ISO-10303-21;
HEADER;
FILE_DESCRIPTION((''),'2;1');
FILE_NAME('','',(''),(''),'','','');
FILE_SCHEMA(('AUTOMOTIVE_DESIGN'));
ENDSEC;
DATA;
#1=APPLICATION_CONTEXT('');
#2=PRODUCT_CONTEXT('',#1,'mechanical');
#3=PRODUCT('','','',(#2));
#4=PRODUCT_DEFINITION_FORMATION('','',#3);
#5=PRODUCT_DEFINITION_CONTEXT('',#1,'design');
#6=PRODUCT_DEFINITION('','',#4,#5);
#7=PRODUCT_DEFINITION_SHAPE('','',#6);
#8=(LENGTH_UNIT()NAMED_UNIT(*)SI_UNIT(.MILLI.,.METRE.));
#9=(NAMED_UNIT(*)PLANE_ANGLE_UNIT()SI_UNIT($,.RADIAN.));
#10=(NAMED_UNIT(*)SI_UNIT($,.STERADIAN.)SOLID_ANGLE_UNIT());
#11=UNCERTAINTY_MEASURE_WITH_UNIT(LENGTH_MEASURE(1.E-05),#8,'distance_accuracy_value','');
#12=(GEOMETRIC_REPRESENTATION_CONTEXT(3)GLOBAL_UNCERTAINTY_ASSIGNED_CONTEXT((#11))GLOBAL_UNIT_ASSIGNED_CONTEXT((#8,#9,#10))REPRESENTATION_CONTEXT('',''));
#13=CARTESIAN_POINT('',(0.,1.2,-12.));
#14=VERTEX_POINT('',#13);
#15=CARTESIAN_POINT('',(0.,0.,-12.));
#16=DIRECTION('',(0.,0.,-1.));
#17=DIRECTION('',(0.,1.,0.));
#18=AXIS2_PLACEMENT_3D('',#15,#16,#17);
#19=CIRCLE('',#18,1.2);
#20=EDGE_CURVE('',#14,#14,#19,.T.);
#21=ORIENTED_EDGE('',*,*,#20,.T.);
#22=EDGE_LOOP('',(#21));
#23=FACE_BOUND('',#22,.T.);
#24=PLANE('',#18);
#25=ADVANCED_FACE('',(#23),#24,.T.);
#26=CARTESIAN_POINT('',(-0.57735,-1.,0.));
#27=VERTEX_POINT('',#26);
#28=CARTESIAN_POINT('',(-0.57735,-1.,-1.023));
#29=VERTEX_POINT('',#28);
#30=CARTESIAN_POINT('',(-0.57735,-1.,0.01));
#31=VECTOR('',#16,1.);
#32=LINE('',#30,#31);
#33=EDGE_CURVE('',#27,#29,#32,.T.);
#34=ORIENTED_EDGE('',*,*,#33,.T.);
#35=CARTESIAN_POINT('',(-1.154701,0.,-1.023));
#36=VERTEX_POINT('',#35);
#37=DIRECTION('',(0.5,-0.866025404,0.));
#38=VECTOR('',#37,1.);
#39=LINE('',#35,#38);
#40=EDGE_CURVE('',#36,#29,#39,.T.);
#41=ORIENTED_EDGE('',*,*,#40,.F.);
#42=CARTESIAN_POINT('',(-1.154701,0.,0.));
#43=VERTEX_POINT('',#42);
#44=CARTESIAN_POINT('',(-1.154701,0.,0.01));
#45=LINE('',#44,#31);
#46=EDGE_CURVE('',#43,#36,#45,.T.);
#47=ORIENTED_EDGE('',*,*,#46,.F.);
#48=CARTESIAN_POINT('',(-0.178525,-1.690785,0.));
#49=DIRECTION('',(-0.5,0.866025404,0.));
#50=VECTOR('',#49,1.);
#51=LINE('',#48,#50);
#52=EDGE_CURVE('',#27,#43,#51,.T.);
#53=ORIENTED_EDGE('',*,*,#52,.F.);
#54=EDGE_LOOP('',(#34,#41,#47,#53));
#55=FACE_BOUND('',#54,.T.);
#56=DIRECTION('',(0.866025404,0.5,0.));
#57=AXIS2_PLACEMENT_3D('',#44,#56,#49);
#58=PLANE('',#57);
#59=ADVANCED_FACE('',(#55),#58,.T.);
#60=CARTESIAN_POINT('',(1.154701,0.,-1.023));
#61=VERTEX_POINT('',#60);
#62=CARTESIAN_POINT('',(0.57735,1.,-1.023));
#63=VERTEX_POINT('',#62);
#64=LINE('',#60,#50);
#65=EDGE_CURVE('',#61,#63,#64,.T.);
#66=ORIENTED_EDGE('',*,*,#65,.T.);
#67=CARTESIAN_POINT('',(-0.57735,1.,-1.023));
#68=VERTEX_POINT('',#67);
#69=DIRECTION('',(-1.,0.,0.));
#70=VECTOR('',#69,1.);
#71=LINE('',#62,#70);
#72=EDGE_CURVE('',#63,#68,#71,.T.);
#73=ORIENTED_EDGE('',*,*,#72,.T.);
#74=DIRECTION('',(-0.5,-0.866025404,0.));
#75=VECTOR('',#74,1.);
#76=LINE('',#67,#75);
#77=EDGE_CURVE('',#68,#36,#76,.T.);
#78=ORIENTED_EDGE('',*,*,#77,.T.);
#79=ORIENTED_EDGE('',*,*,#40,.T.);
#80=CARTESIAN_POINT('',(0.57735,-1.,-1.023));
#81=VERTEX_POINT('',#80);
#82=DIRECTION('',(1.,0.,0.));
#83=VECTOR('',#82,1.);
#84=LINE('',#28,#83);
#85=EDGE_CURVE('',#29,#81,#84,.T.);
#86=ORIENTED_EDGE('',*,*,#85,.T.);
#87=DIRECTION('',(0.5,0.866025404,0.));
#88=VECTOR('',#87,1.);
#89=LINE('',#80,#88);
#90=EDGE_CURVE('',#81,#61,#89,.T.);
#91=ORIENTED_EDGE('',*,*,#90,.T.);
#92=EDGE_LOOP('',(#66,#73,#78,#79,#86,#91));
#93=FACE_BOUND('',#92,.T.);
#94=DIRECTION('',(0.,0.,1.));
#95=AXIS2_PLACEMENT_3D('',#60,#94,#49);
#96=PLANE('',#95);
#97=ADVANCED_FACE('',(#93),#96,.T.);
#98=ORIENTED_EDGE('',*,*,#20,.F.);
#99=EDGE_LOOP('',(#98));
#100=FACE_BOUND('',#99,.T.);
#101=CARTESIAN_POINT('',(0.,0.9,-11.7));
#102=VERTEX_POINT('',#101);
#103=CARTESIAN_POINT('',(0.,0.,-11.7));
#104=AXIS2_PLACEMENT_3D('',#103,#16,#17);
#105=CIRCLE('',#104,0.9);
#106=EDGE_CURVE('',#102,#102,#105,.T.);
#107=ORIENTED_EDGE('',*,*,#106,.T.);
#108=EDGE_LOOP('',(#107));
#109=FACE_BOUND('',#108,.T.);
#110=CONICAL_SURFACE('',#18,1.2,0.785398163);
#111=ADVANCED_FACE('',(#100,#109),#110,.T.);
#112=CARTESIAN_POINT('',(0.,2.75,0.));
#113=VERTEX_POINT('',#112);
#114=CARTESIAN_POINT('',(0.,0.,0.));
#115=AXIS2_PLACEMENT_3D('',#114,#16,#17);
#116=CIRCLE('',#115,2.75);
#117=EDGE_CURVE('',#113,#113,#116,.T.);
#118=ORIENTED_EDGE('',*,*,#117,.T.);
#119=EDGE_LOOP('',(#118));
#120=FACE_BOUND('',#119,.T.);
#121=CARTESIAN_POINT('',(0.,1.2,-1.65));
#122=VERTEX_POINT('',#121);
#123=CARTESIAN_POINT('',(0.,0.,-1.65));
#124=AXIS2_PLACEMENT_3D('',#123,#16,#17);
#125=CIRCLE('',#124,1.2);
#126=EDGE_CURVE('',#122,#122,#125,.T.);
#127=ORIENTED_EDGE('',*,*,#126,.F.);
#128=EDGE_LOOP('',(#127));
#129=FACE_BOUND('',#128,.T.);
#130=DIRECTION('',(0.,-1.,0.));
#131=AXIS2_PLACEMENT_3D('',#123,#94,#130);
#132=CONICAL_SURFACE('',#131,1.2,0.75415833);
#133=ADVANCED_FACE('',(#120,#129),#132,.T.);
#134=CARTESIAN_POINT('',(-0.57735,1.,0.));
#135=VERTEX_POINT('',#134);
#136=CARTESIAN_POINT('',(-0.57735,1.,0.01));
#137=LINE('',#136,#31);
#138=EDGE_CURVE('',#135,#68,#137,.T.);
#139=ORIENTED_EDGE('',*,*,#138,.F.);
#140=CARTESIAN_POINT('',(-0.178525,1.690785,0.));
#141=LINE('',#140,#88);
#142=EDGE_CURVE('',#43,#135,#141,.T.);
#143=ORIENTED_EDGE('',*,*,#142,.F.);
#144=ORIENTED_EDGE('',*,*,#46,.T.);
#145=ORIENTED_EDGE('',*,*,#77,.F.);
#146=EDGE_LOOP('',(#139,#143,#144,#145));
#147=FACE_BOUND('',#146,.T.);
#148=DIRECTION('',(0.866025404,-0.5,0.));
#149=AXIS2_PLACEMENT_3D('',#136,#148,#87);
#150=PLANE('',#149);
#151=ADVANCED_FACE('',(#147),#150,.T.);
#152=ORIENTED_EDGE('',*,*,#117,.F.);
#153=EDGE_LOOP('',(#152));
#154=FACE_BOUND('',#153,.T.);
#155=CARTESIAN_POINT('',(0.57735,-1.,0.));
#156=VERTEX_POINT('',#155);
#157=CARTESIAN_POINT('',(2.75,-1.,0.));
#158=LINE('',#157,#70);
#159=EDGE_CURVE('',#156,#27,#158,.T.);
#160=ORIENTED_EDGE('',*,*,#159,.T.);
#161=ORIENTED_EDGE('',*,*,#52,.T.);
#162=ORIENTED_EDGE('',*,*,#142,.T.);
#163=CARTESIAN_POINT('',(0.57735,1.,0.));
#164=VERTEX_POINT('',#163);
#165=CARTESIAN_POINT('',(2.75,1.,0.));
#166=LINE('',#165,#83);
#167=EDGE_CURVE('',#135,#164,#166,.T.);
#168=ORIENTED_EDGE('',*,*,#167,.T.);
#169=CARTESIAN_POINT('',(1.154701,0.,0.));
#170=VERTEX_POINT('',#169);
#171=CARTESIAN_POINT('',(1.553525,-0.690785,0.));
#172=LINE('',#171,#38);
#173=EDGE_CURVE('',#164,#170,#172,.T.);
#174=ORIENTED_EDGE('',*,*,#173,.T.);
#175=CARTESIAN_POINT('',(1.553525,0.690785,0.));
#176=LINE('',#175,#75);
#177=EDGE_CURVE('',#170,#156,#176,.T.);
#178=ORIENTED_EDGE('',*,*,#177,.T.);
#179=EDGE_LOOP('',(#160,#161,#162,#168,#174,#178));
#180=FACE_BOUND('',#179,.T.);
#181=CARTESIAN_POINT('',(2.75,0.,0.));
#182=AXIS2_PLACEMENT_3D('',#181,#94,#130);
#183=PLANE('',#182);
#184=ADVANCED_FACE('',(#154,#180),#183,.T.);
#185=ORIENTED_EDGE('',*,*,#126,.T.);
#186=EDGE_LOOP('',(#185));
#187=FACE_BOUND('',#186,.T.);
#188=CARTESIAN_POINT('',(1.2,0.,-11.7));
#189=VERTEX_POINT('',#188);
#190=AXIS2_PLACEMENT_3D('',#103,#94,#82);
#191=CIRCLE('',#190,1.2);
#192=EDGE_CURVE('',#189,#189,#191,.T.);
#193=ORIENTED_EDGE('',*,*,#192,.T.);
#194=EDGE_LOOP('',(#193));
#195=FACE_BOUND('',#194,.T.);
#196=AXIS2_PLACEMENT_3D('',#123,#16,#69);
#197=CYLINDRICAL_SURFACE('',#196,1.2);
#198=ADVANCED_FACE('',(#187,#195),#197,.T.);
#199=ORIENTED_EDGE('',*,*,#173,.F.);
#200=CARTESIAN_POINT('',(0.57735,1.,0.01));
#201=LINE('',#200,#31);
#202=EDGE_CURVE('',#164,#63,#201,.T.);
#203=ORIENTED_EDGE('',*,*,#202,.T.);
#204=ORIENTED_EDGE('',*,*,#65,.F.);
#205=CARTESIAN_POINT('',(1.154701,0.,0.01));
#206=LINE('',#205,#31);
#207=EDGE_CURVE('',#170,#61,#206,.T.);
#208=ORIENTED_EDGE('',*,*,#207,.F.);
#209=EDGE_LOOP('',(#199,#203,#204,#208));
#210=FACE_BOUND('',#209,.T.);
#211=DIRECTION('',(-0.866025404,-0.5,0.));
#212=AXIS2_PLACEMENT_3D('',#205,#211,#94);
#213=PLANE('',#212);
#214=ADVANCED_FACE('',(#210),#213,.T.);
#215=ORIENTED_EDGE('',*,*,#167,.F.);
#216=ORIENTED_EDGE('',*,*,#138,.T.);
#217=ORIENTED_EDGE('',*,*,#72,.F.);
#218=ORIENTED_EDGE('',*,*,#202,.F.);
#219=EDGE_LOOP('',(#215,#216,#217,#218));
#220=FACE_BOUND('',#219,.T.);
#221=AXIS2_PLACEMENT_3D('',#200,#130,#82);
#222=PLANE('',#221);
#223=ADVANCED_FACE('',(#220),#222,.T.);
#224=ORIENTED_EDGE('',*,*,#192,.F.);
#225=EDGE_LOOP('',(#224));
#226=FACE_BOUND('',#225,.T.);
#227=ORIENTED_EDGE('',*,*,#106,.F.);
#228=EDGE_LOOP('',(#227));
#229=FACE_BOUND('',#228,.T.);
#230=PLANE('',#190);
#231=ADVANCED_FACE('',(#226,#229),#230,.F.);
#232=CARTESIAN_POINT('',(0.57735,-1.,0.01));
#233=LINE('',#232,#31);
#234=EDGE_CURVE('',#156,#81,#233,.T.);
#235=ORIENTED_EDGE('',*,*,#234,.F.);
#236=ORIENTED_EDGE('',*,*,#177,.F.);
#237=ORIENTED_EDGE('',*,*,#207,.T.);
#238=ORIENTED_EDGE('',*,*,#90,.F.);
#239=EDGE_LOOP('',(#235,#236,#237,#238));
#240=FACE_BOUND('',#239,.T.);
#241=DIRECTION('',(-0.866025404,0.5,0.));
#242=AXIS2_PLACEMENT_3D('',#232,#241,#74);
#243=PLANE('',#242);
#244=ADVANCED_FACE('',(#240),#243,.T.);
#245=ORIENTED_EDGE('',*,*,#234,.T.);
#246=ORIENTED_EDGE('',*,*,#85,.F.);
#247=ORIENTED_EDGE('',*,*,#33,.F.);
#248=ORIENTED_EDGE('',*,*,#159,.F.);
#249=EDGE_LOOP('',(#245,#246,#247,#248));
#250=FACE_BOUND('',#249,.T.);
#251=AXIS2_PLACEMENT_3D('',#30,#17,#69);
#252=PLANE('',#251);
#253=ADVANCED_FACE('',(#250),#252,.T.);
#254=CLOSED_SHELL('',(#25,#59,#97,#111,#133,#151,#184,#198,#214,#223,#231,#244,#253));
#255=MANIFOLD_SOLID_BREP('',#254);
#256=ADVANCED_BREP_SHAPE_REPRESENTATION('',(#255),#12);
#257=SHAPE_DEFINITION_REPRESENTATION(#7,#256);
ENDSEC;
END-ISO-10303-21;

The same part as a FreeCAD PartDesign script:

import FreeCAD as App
import Part
import Sketcher
from FreeCAD import Vector
Q = App.Units.Quantity


def add_polygon(sketch, points):
    """Adds a closed chain of lines whose ends are joined by coincident constraints."""
    first, n = sketch.GeometryCount, len(points)
    for a, b in zip(points, points[1:] + points[:1]):
        sketch.addGeometry(Part.LineSegment(App.Vector(*a, 0), App.Vector(*b, 0)), False)
    for i in range(n):
        sketch.addConstraint(Sketcher.Constraint("Coincident", first + i, 2, first + (i + 1) % n, 1))

doc = App.newDocument("Part")
body = doc.addObject("PartDesign::Body", "Body")

sketch1 = body.newObject("Sketcher::SketchObject", "Sketch")
sketch1.AttachmentSupport = (doc.getObject("XY_Plane"), [""])
sketch1.MapMode = "FlatFace"
add_polygon(sketch1, [(0, 0), (1.2, 0), (2.8, 1.6), (0, 1.6)])
sketch1.addConstraint(Sketcher.Constraint("Horizontal", 0))
sketch1.addConstraint(Sketcher.Constraint("Horizontal", 2))
sketch1.addConstraint(Sketcher.Constraint("Vertical", 3))
sketch1.addConstraint(Sketcher.Constraint("Coincident", 3, 2, -1, 1))
sketch1.addConstraint(Sketcher.Constraint("DistanceX", 0, 1, 0, 2, 1.2))
sketch1.addConstraint(Sketcher.Constraint("DistanceX", 2, 2, 2, 1, 2.75))
sketch1.addConstraint(Sketcher.Constraint("DistanceY", 3, 2, 3, 1, 1.65))
revolution = body.newObject("PartDesign::Revolution", "Revolution")
revolution.Profile = sketch1
revolution.ReferenceAxis = (sketch1, ["V_Axis"])
revolution.Angle = 360
body2 = doc.addObject("PartDesign::Body", "Body001")
doc.recompute()

body.Placement = App.Placement(Vector(0, 0, 0), App.Rotation(Vector(1, 0, 0), 90))
boolean = body2.newObject("PartDesign::Boolean", "Boolean")
boolean.Type = "Fuse"
boolean.addObjects([body])
body3 = doc.addObject("PartDesign::Body", "Body002")
doc.recompute()

body2.Placement = App.Placement(Vector(0, 0, -1.65), App.Rotation(Vector(0, 0, 1), 0))
boolean2 = body3.newObject("PartDesign::Boolean", "Boolean001")
boolean2.Type = "Fuse"
boolean2.addObjects([body2])
body4 = doc.addObject("PartDesign::Body", "Body003")

sketch2 = body4.newObject("Sketcher::SketchObject", "Sketch001")
sketch2.AttachmentSupport = (doc.getObject("XY_Plane003"), [""])
sketch2.MapMode = "FlatFace"
sketch2.addGeometry(Part.Circle(Vector(0, 0, 0), Vector(0, 0, 1), 1.2), False)
sketch2.addConstraint(Sketcher.Constraint("Coincident", 0, 3, -1, 1))
sketch2.addConstraint(Sketcher.Constraint("Diameter", 0, 2.4))
pad1 = body4.newObject("PartDesign::Pad", "Pad")
pad1.Profile = sketch2
pad1.Length = 10.05
body5 = doc.addObject("PartDesign::Body", "Body004")
doc.recompute()

body4.Placement = App.Placement(Vector(0, 0, -11.7), App.Rotation(Vector(0, 0, 1), 0))
boolean3 = body5.newObject("PartDesign::Boolean", "Boolean002")
boolean3.Type = "Fuse"
boolean3.addObjects([body4])
body6 = doc.addObject("PartDesign::Body", "Body005")

sketch3 = body6.newObject("Sketcher::SketchObject", "Sketch002")
sketch3.AttachmentSupport = (doc.getObject("XY_Plane005"), [""])
sketch3.MapMode = "FlatFace"
add_polygon(sketch3, [(0, 0), (1.2, 0), (0.9, 0.3), (0, 0.3)])
sketch3.addConstraint(Sketcher.Constraint("Horizontal", 0))
sketch3.addConstraint(Sketcher.Constraint("Horizontal", 2))
sketch3.addConstraint(Sketcher.Constraint("Vertical", 3))
sketch3.addConstraint(Sketcher.Constraint("Coincident", 3, 2, -1, 1))
sketch3.addConstraint(Sketcher.Constraint("Angle", 1, Q("135 deg")))
sketch3.addConstraint(Sketcher.Constraint("DistanceX", 0, 1, 0, 2, 1.2))
sketch3.addConstraint(Sketcher.Constraint("DistanceX", 2, 2, 2, 1, 0.9))
revolution2 = body6.newObject("PartDesign::Revolution", "Revolution001")
revolution2.Profile = sketch3
revolution2.ReferenceAxis = (sketch3, ["V_Axis"])
revolution2.Angle = 360
body7 = doc.addObject("PartDesign::Body", "Body006")
doc.recompute()

body6.Placement = App.Placement(Vector(0, 0, 0), App.Rotation(Vector(1, 0, 0), 90))
boolean4 = body7.newObject("PartDesign::Boolean", "Boolean003")
boolean4.Type = "Fuse"
boolean4.addObjects([body6])
body8 = doc.addObject("PartDesign::Body", "Body007")
doc.recompute()

body7.Placement = App.Placement(Vector(0, 0, -12), App.Rotation(Vector(0, 0, 1), 0))
boolean5 = body8.newObject("PartDesign::Boolean", "Boolean004")
boolean5.Type = "Fuse"
boolean5.addObjects([body7])
doc.recompute()

boolean6 = body5.newObject("PartDesign::Boolean", "Boolean005")
boolean6.Type = "Fuse"
boolean6.addObjects([body8])
doc.recompute()

boolean7 = body3.newObject("PartDesign::Boolean", "Boolean006")
boolean7.Type = "Fuse"
boolean7.addObjects([body5])
body9 = doc.addObject("PartDesign::Body", "Body008")

sketch4 = body9.newObject("Sketcher::SketchObject", "Sketch003")
sketch4.AttachmentSupport = (doc.getObject("XY_Plane008"), [""])
sketch4.MapMode = "FlatFace"
add_polygon(sketch4, [(0, 0), (1.2, 0), (1.7, 1), (1.2, 2), (0, 2), (-0.6, 1)])
sketch4.addConstraint(Sketcher.Constraint("Horizontal", 0))
sketch4.addConstraint(Sketcher.Constraint("Horizontal", 3))
sketch4.addConstraint(Sketcher.Constraint("Coincident", 5, 2, -1, 1))
sketch4.addConstraint(Sketcher.Constraint("PointOnObject", 3, 2, -2))
sketch4.addConstraint(Sketcher.Constraint("Parallel", 1, 4))
sketch4.addConstraint(Sketcher.Constraint("Parallel", 2, 5))
sketch4.addConstraint(Sketcher.Constraint("Horizontal", 1, 2, 4, 2))
sketch4.addConstraint(Sketcher.Constraint("Vertical", 0, 2, 2, 2))
sketch4.addConstraint(Sketcher.Constraint("Angle", 1, Q("60 deg")))
sketch4.addConstraint(Sketcher.Constraint("DistanceY", -1, 1, 1, 2, 1.0))
sketch4.addConstraint(Sketcher.Constraint("DistanceX", 0, 1, 0, 2, 1.154701))
pad2 = body9.newObject("PartDesign::Pad", "Pad001")
pad2.Profile = sketch4
pad2.Length = 1.033
body10 = doc.addObject("PartDesign::Body", "Body009")
doc.recompute()

body9.Placement = App.Placement(Vector(0, 0, 0), App.Rotation(Vector(0, 0, 1), 120))
boolean8 = body10.newObject("PartDesign::Boolean", "Boolean007")
boolean8.Type = "Fuse"
boolean8.addObjects([body9])
body11 = doc.addObject("PartDesign::Body", "Body010")
doc.recompute()

body10.Placement = App.Placement(Vector(1.154701, 0, -1.023), App.Rotation(Vector(0, 0, 1), 0))
boolean9 = body11.newObject("PartDesign::Boolean", "Boolean008")
boolean9.Type = "Fuse"
boolean9.addObjects([body10])
doc.recompute()

boolean10 = body3.newObject("PartDesign::Boolean", "Boolean009")
boolean10.Type = "Cut"
boolean10.addObjects([body11])

doc.recompute()
